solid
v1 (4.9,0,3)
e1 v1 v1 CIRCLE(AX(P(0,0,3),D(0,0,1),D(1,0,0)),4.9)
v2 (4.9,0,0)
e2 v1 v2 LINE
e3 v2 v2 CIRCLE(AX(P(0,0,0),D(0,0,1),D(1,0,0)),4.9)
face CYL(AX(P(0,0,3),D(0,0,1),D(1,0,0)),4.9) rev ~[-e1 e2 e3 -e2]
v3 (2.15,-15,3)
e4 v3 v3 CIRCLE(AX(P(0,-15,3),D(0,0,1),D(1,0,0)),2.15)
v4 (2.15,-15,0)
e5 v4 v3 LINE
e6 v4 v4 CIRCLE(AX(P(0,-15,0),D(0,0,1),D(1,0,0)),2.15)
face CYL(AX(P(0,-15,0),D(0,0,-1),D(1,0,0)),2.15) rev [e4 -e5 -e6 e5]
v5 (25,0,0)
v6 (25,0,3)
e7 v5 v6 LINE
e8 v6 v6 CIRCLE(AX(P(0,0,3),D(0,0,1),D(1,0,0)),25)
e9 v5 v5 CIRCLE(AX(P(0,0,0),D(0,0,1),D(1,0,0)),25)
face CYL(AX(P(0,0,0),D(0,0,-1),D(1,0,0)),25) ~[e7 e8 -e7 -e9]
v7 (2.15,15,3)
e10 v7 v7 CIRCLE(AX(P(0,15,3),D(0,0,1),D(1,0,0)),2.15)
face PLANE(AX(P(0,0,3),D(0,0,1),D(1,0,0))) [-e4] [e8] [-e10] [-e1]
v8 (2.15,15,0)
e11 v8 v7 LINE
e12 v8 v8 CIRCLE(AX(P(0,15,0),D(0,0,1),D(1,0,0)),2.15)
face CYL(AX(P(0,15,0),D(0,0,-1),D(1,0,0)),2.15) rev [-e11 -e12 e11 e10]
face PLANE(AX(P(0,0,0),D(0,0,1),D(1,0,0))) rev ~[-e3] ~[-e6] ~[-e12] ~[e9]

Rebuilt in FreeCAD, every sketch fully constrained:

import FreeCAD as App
import Part
import Sketcher
Q = App.Units.Quantity

doc = App.newDocument("Part")
body = doc.addObject("PartDesign::Body", "Body")

# Sketch on XY plane
sketch1 = body.newObject("Sketcher::SketchObject", "Sketch")
sketch1.AttachmentSupport = (doc.getObject("XY_Plane"), [""])
sketch1.MapMode = "FlatFace"
sketch1.addGeometry(Part.Circle(App.Vector(0, 0, 0), App.Vector(0, 0, 1), 25), False)
sketch1.addGeometry(Part.Circle(App.Vector(0, -15, 0), App.Vector(0, 0, 1), 2.15), False)
sketch1.addGeometry(Part.Circle(App.Vector(0, 15, 0), App.Vector(0, 0, 1), 2.15), False)
sketch1.addConstraint(Sketcher.Constraint("Coincident", 0, 3, -1, 1))
sketch1.addConstraint(Sketcher.Constraint("Equal", 1, 2))
sketch1.addConstraint(Sketcher.Constraint("Symmetric", 1, 3, 2, 3, -1, 1))
sketch1.addConstraint(Sketcher.Constraint("PointOnObject", 1, 3, -2))
sketch1.addConstraint(Sketcher.Constraint("Diameter", 0, Q("50 mm")))
sketch1.addConstraint(Sketcher.Constraint("Diameter", 1, Q("4.3 mm")))
sketch1.addConstraint(Sketcher.Constraint("DistanceY", 1, 3, -1, 1, Q("15 mm")))
pad1 = body.newObject("PartDesign::Pad", "Pad")
pad1.Profile = sketch1
pad1.Length = 3

# Sketch on XY plane
sketch2 = body.newObject("Sketcher::SketchObject", "Sketch001")
sketch2.AttachmentSupport = (doc.getObject("XY_Plane"), [""])
sketch2.MapMode = "FlatFace"
sketch2.AttachmentOffset = App.Placement(App.Vector(0, 0, 3), App.Rotation())
sketch2.addGeometry(Part.Circle(App.Vector(0, 0, 0), App.Vector(0, 0, 1), 4.9), False)
sketch2.addConstraint(Sketcher.Constraint("Coincident", 0, 3, -1, 1))
sketch2.addConstraint(Sketcher.Constraint("Diameter", 0, Q("9.8 mm")))
pocket1 = body.newObject("PartDesign::Pocket", "Pocket")
pocket1.Profile = sketch2
pocket1.Type = "ThroughAll"

doc.recompute()
